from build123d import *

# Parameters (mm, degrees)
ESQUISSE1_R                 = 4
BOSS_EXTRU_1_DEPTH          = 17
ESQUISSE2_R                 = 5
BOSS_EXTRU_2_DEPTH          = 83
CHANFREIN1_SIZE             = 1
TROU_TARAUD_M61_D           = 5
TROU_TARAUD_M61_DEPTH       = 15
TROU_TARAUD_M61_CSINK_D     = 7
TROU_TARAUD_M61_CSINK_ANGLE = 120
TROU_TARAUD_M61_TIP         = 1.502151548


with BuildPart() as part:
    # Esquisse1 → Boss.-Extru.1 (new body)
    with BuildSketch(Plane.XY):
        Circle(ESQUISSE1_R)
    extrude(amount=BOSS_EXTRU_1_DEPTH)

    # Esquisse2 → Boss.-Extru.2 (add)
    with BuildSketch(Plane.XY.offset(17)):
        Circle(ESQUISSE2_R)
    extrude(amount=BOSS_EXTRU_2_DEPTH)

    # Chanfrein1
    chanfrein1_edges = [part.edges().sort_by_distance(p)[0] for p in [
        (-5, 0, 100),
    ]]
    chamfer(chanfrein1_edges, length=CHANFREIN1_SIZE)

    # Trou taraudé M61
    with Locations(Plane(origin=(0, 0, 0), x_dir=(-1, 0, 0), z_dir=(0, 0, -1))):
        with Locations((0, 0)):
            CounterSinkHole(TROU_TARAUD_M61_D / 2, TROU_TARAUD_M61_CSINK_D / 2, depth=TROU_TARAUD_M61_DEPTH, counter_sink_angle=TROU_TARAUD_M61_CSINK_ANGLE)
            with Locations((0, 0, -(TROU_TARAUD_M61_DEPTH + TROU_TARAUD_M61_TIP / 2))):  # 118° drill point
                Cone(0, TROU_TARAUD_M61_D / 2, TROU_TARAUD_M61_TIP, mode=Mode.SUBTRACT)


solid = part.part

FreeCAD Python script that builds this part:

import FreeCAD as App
import Part
import Sketcher
from FreeCAD import Vector
Q = App.Units.Quantity


def edges_at(feature, points):
    """Names of the edges that pass closest to the given points."""
    edges = feature.Shape.Edges
    near = lambda p: min(range(len(edges)), key=lambda i: edges[i].distToShape(Part.Vertex(*p))[0])
    return sorted({f"Edge{near(p) + 1}" for p in points})

doc = App.newDocument("Part")
body = doc.addObject("PartDesign::Body", "Body")

sketch1 = body.newObject("Sketcher::SketchObject", "Sketch")
sketch1.AttachmentSupport = (doc.getObject("XY_Plane"), [""])
sketch1.MapMode = "FlatFace"
sketch1.addGeometry(Part.Circle(Vector(0, 0, 0), Vector(0, 0, 1), 4), False)
sketch1.addConstraint(Sketcher.Constraint("Coincident", 0, 3, -1, 1))
sketch1.addConstraint(Sketcher.Constraint("Diameter", 0, Q("8 mm")))
pad1 = body.newObject("PartDesign::Pad", "Pad")
pad1.Profile = sketch1
pad1.Length = 17

sketch2 = body.newObject("Sketcher::SketchObject", "Sketch001")
sketch2.AttachmentSupport = (doc.getObject("XY_Plane"), [""])
sketch2.MapMode = "FlatFace"
sketch2.AttachmentOffset = App.Placement(Vector(0, 0, 17), App.Rotation())
sketch2.addGeometry(Part.Circle(Vector(0, 0, 0), Vector(0, 0, 1), 5), False)
sketch2.addConstraint(Sketcher.Constraint("Coincident", 0, 3, -1, 1))
sketch2.addConstraint(Sketcher.Constraint("Diameter", 0, Q("10 mm")))
pad2 = body.newObject("PartDesign::Pad", "Pad001")
pad2.Profile = sketch2
pad2.Length = 83
doc.recompute()

chamfer = body.newObject("PartDesign::Chamfer", "Chamfer")
chamfer.Base = (pad2, edges_at(pad2, [(-5, 0, 100)]))
chamfer.Size = 1

sketch3 = body.newObject("Sketcher::SketchObject", "Sketch002")
sketch3.AttachmentSupport = (doc.getObject("XY_Plane"), [""])
sketch3.MapMode = "FlatFace"
sketch3.addGeometry(Part.Circle(Vector(0, 0, 0), Vector(0, 0, 1), 2.5), False)
sketch3.addConstraint(Sketcher.Constraint("Coincident", 0, 3, -1, 1))
sketch3.addConstraint(Sketcher.Constraint("Diameter", 0, Q("5 mm")))
doc.recompute()
hole = body.newObject("PartDesign::Hole", "Hole")
hole.Profile = sketch3
hole.ThreadType = "None"
hole.Diameter = 5
hole.DepthType = "Dimension"
hole.Depth = 15
hole.DrillPoint = "Angled"
hole.DrillPointAngle = 118
hole.HoleCutType = "Countersink"
hole.HoleCutDiameter = 7
hole.HoleCutCountersinkAngle = 120
hole.Reversed = True

doc.recompute()
